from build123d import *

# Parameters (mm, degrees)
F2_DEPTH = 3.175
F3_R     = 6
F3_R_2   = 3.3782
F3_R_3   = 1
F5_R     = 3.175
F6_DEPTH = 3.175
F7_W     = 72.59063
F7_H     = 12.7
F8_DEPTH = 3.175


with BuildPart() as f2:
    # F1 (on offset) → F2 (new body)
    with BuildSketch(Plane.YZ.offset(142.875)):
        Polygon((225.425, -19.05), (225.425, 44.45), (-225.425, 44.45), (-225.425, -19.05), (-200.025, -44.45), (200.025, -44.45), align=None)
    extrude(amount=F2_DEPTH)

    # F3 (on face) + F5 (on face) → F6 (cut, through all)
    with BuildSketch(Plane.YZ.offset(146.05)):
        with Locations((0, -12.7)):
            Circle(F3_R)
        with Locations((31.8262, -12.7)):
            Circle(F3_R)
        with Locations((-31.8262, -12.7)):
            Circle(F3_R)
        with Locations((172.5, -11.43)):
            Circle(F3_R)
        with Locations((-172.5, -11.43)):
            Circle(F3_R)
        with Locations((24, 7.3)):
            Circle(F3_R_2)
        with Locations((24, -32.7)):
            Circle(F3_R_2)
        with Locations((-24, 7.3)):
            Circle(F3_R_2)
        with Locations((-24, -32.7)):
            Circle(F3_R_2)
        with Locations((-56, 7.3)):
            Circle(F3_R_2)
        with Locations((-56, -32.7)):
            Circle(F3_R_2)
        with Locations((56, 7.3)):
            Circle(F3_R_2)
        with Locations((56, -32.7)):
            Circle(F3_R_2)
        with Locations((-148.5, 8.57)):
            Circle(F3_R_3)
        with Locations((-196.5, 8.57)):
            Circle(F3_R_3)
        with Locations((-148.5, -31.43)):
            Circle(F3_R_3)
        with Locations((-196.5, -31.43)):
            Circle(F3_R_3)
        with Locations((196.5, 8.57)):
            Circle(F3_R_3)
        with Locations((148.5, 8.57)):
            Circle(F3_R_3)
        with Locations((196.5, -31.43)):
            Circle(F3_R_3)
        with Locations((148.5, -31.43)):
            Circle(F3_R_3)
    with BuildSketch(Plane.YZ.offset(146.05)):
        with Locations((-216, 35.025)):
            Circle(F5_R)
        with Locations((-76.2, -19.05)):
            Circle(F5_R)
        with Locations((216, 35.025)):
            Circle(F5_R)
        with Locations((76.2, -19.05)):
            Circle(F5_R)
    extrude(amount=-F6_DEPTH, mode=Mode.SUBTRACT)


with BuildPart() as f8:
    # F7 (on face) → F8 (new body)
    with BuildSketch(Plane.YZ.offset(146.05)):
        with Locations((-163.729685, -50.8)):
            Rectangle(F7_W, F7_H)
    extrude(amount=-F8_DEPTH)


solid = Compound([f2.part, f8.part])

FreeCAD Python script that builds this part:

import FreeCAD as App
import Part
import Sketcher

V = App.Vector
Q = App.Units.Quantity


def add_polygon(sketch, points):
    """Adds a closed chain of lines whose ends are joined by coincident constraints."""
    first, n = sketch.GeometryCount, len(points)
    for a, b in zip(points, points[1:] + points[:1]):
        sketch.addGeometry(Part.LineSegment(App.Vector(*a, 0), App.Vector(*b, 0)), False)
    for i in range(n):
        sketch.addConstraint(Sketcher.Constraint("Coincident", first + i, 2, first + (i + 1) % n, 1))

doc = App.newDocument("Part")
body = doc.addObject("PartDesign::Body", "Body")

# Sketch on YZ plane
sketch1 = body.newObject("Sketcher::SketchObject", "Sketch")
sketch1.AttachmentSupport = (doc.getObject("YZ_Plane"), [""])
sketch1.MapMode = "FlatFace"
sketch1.AttachmentOffset = App.Placement(V(0, 0, 5.625 * 25.4), App.Rotation())
add_polygon(sketch1, [(225, -19), (225, 44), (-225, 44), (-225, -19), (-200, -44), (200, -44)])  # lines 0-5
sketch1.addConstraint(Sketcher.Constraint("Vertical", 0))
sketch1.addConstraint(Sketcher.Constraint("Horizontal", 1))
sketch1.addConstraint(Sketcher.Constraint("Vertical", 2))
sketch1.addConstraint(Sketcher.Constraint("Horizontal", 4))
sketch1.addConstraint(Sketcher.Constraint("Symmetric", 2, 2, 5, 2, -2))
sketch1.addConstraint(Sketcher.Constraint("Perpendicular", 3, 5))
sketch1.addConstraint(Sketcher.Constraint("Equal", 3, 5))
sketch1.addConstraint(Sketcher.Constraint("DistanceY", 0, 1, 0, 2, Q("2.5 in")))
sketch1.addConstraint(Sketcher.Constraint("DistanceX", 2, 2, 3, 2, Q("1 in")))
sketch1.addConstraint(Sketcher.Constraint("DistanceX", 1, 2, 1, 1, Q("17.75 in")))
sketch1.addConstraint(Sketcher.Constraint("DistanceY", -1, 1, 0, 2, Q("1.75 in")))
pad1 = body.newObject("PartDesign::Pad", "Pad")
pad1.Profile = sketch1
pad1.Length = Q("0.125 in")

# Sketch on YZ plane
sketch2 = body.newObject("Sketcher::SketchObject", "Sketch001")
sketch2.AttachmentSupport = (doc.getObject("YZ_Plane"), [""])
sketch2.MapMode = "FlatFace"
sketch2.AttachmentOffset = App.Placement(V(0, 0, 5.75 * 25.4), App.Rotation())
sketch2.addGeometry(Part.Circle(V(0, -12.7, 0), V(0, 0, 1), 6), False)
sketch2.addGeometry(Part.Circle(V(31.8, -12.7, 0), V(0, 0, 1), 6), False)
sketch2.addGeometry(Part.Circle(V(-31.8, -12.7, 0), V(0, 0, 1), 6), False)
sketch2.addGeometry(Part.Circle(V(172.5, -11.4, 0), V(0, 0, 1), 6), False)
sketch2.addGeometry(Part.Circle(V(-172.5, -11.4, 0), V(0, 0, 1), 6), False)
sketch2.addGeometry(Part.Circle(V(24, 7.3, 0), V(0, 0, 1), 3.4), False)
sketch2.addGeometry(Part.Circle(V(24, -32.7, 0), V(0, 0, 1), 3.4), False)
sketch2.addGeometry(Part.Circle(V(-24, 7.3, 0), V(0, 0, 1), 3.4), False)
sketch2.addGeometry(Part.Circle(V(-24, -32.7, 0), V(0, 0, 1), 3.4), False)
sketch2.addGeometry(Part.Circle(V(-56, 7.3, 0), V(0, 0, 1), 3.4), False)
sketch2.addGeometry(Part.Circle(V(-56, -32.7, 0), V(0, 0, 1), 3.4), False)
sketch2.addGeometry(Part.Circle(V(56, 7.3, 0), V(0, 0, 1), 3.4), False)
sketch2.addGeometry(Part.Circle(V(56, -32.7, 0), V(0, 0, 1), 3.4), False)
sketch2.addGeometry(Part.Circle(V(-148.5, 8.6, 0), V(0, 0, 1), 1), False)
sketch2.addGeometry(Part.Circle(V(-196.5, 8.6, 0), V(0, 0, 1), 1), False)
sketch2.addGeometry(Part.Circle(V(-148.5, -31.4, 0), V(0, 0, 1), 1), False)
sketch2.addGeometry(Part.Circle(V(-196.5, -31.4, 0), V(0, 0, 1), 1), False)
sketch2.addGeometry(Part.Circle(V(196.5, 8.6, 0), V(0, 0, 1), 1), False)
sketch2.addGeometry(Part.Circle(V(148.5, 8.6, 0), V(0, 0, 1), 1), False)
sketch2.addGeometry(Part.Circle(V(196.5, -31.4, 0), V(0, 0, 1), 1), False)
sketch2.addGeometry(Part.Circle(V(148.5, -31.4, 0), V(0, 0, 1), 1), False)
sketch2.addGeometry(Part.Circle(V(-216, 35, 0), V(0, 0, 1), 3.2), False)
sketch2.addGeometry(Part.Circle(V(-76.2, -19.1, 0), V(0, 0, 1), 3.2), False)
sketch2.addGeometry(Part.Circle(V(216, 35, 0), V(0, 0, 1), 3.2), False)
sketch2.addGeometry(Part.Circle(V(76.2, -19.1, 0), V(0, 0, 1), 3.2), False)
sketch2.addConstraint(Sketcher.Constraint("Equal", 0, 1))
sketch2.addConstraint(Sketcher.Constraint("Equal", 1, 2))
sketch2.addConstraint(Sketcher.Constraint("Equal", 2, 3))
sketch2.addConstraint(Sketcher.Constraint("Equal", 3, 4))
sketch2.addConstraint(Sketcher.Constraint("Equal", 5, 6))
sketch2.addConstraint(Sketcher.Constraint("Equal", 6, 7))
sketch2.addConstraint(Sketcher.Constraint("Equal", 7, 8))
sketch2.addConstraint(Sketcher.Constraint("Equal", 8, 9))
sketch2.addConstraint(Sketcher.Constraint("Equal", 9, 10))
sketch2.addConstraint(Sketcher.Constraint("Equal", 10, 11))
sketch2.addConstraint(Sketcher.Constraint("Equal", 11, 12))
sketch2.addConstraint(Sketcher.Constraint("Equal", 13, 14))
sketch2.addConstraint(Sketcher.Constraint("Equal", 14, 15))
sketch2.addConstraint(Sketcher.Constraint("Equal", 15, 16))
sketch2.addConstraint(Sketcher.Constraint("Equal", 16, 17))
sketch2.addConstraint(Sketcher.Constraint("Equal", 17, 18))
sketch2.addConstraint(Sketcher.Constraint("Equal", 18, 19))
sketch2.addConstraint(Sketcher.Constraint("Equal", 19, 20))
sketch2.addConstraint(Sketcher.Constraint("Equal", 21, 22))
sketch2.addConstraint(Sketcher.Constraint("Equal", 22, 23))
sketch2.addConstraint(Sketcher.Constraint("Equal", 23, 24))
sketch2.addConstraint(Sketcher.Constraint("Symmetric", 1, 3, 2, 3, -2))
sketch2.addConstraint(Sketcher.Constraint("Symmetric", 3, 3, 4, 3, -2))
sketch2.addConstraint(Sketcher.Constraint("Symmetric", 5, 3, 7, 3, -2))
sketch2.addConstraint(Sketcher.Constraint("Symmetric", 6, 3, 8, 3, -2))
sketch2.addConstraint(Sketcher.Constraint("Symmetric", 9, 3, 11, 3, -2))
sketch2.addConstraint(Sketcher.Constraint("Symmetric", 10, 3, 12, 3, -2))
sketch2.addConstraint(Sketcher.Constraint("Symmetric", 14, 3, 17, 3, -2))
sketch2.addConstraint(Sketcher.Constraint("Symmetric", 13, 3, 18, 3, -2))
sketch2.addConstraint(Sketcher.Constraint("Symmetric", 16, 3, 19, 3, -2))
sketch2.addConstraint(Sketcher.Constraint("Symmetric", 15, 3, 20, 3, -2))
sketch2.addConstraint(Sketcher.Constraint("Symmetric", 21, 3, 23, 3, -2))
sketch2.addConstraint(Sketcher.Constraint("Symmetric", 22, 3, 24, 3, -2))
sketch2.addConstraint(Sketcher.Constraint("PointOnObject", 0, 3, -2))
sketch2.addConstraint(Sketcher.Constraint("Horizontal", 0, 3, 1, 3))
sketch2.addConstraint(Sketcher.Constraint("Horizontal", 7, 3, 9, 3))
sketch2.addConstraint(Sketcher.Constraint("Horizontal", 8, 3, 10, 3))
sketch2.addConstraint(Sketcher.Constraint("Horizontal", 13, 3, 14, 3))
sketch2.addConstraint(Sketcher.Constraint("Horizontal", 15, 3, 16, 3))
sketch2.addConstraint(Sketcher.Constraint("Vertical", 5, 3, 6, 3))
sketch2.addConstraint(Sketcher.Constraint("Vertical", 9, 3, 10, 3))
sketch2.addConstraint(Sketcher.Constraint("Vertical", 13, 3, 15, 3))
sketch2.addConstraint(Sketcher.Constraint("Vertical", 14, 3, 16, 3))
sketch2.addConstraint(Sketcher.Constraint("Diameter", 21, Q("0.25 in")))
sketch2.addConstraint(Sketcher.Constraint("Diameter", 5, Q("0.266 in")))
sketch2.addConstraint(Sketcher.Constraint("DistanceX", 22, 3, -1, 1, Q("3 in")))
sketch2.addConstraint(Sketcher.Constraint("DistanceY", 0, 3, -1, 1, Q("0.5 in")))
sketch2.addConstraint(Sketcher.Constraint("Diameter", 0, Q("12 mm")))
sketch2.addConstraint(Sketcher.Constraint("Diameter", 13, Q("2 mm")))
sketch2.addConstraint(Sketcher.Constraint("DistanceY", 3, 3, -1, 1, Q("0.45 in")))
sketch2.addConstraint(Sketcher.Constraint("DistanceY", 22, 3, -1, 1, Q("0.75 in")))
sketch2.addConstraint(Sketcher.Constraint("DistanceY", 9, 3, 13, 3, Q("0.05 in")))
sketch2.addConstraint(Sketcher.Constraint("DistanceY", 10, 3, 15, 3, Q("0.05 in")))
sketch2.addConstraint(Sketcher.Constraint("DistanceX", -1, 1, 1, 3, Q("1.253 in")))
sketch2.addConstraint(Sketcher.Constraint("DistanceX", -1, 1, 3, 3, Q("172.5 mm")))
sketch2.addConstraint(Sketcher.Constraint("DistanceX", -1, 1, 5, 3, Q("24 mm")))
sketch2.addConstraint(Sketcher.Constraint("DistanceY", -1, 1, 5, 3, Q("7.3 mm")))
sketch2.addConstraint(Sketcher.Constraint("DistanceY", 6, 3, -1, 1, Q("32.7 mm")))
sketch2.addConstraint(Sketcher.Constraint("DistanceX", 9, 3, -1, 1, Q("56 mm")))
sketch2.addConstraint(Sketcher.Constraint("DistanceX", 13, 3, -1, 1, Q("148.5 mm")))
sketch2.addConstraint(Sketcher.Constraint("DistanceX", 14, 3, -1, 1, Q("196.5 mm")))
sketch2.addConstraint(Sketcher.Constraint("DistanceX", 21, 3, -1, 1, Q("216 mm")))
sketch2.addConstraint(Sketcher.Constraint("DistanceY", -1, 1, 21, 3, Q("35.025 mm")))
pocket1 = body.newObject("PartDesign::Pocket", "Pocket")
pocket1.Profile = sketch2
pocket1.Type = "ThroughAll"
body2 = doc.addObject("PartDesign::Body", "Body001")

# Sketch on YZ plane
sketch3 = body2.newObject("Sketcher::SketchObject", "Sketch002")
sketch3.AttachmentSupport = (doc.getObject("YZ_Plane001"), [""])
sketch3.MapMode = "FlatFace"
sketch3.AttachmentOffset = App.Placement(V(0, 0, 5.75 * 25.4), App.Rotation())
add_polygon(sketch3, [(-200, -44), (-200, -57), (-127, -57), (-127, -44)])  # lines 0-3
sketch3.addConstraint(Sketcher.Constraint("Vertical", 0))
sketch3.addConstraint(Sketcher.Constraint("Horizontal", 1))
sketch3.addConstraint(Sketcher.Constraint("Vertical", 2))
sketch3.addConstraint(Sketcher.Constraint("Horizontal", 3))
sketch3.addConstraint(Sketcher.Constraint("DistanceY", 0, 2, 0, 1, Q("0.5 in")))
sketch3.addConstraint(Sketcher.Constraint("DistanceY", 0, 2, -1, 1, Q("2.25 in")))
sketch3.addConstraint(Sketcher.Constraint("DistanceX", 0, 2, -1, 1, Q("7.875 in")))
sketch3.addConstraint(Sketcher.Constraint("DistanceX", 1, 1, 1, 2, Q("72.59063 mm")))
pad2 = body2.newObject("PartDesign::Pad", "Pad001")
pad2.Profile = sketch3
pad2.Length = Q("0.125 in")
pad2.Reversed = True

doc.recompute()
